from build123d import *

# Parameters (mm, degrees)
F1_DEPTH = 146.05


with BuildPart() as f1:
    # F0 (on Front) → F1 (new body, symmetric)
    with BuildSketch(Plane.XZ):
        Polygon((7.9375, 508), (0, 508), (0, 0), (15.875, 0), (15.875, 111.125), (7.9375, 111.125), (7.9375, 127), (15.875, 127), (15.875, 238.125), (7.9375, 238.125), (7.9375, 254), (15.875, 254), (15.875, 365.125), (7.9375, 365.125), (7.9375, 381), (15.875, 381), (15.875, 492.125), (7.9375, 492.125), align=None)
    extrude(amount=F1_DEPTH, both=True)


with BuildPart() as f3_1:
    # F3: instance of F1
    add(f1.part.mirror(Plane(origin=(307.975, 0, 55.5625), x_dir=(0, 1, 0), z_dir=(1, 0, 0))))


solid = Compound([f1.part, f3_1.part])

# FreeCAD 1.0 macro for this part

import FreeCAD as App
import Part
import Sketcher
Q = App.Units.Quantity


def add_polygon(sketch, points):
    """Adds a closed chain of lines whose ends are joined by coincident constraints."""
    first, n = sketch.GeometryCount, len(points)
    for a, b in zip(points, points[1:] + points[:1]):
        sketch.addGeometry(Part.LineSegment(App.Vector(*a, 0), App.Vector(*b, 0)), False)
    for i in range(n):
        sketch.addConstraint(Sketcher.Constraint("Coincident", first + i, 2, first + (i + 1) % n, 1))

doc = App.newDocument("Part")
body = doc.addObject("PartDesign::Body", "Body")

# Sketch on XZ plane
sketch1 = body.newObject("Sketcher::SketchObject", "Sketch")
sketch1.AttachmentSupport = (doc.getObject("XZ_Plane"), [""])
sketch1.MapMode = "FlatFace"
add_polygon(sketch1, [(8, 508), (0, 508), (0, 0), (16, 0), (16, 111), (8, 111), (8, 127), (16, 127), (16, 238), (8, 238), (8, 254), (16, 254), (16, 365), (8, 365), (8, 381), (16, 381), (16, 492), (8, 492)])  # lines 0-17
sketch1.addConstraint(Sketcher.Constraint("Horizontal", 0))
sketch1.addConstraint(Sketcher.Constraint("Vertical", 1))
sketch1.addConstraint(Sketcher.Constraint("Horizontal", 2))
sketch1.addConstraint(Sketcher.Constraint("Vertical", 3))
sketch1.addConstraint(Sketcher.Constraint("Horizontal", 4))
sketch1.addConstraint(Sketcher.Constraint("Vertical", 5))
sketch1.addConstraint(Sketcher.Constraint("Horizontal", 6))
sketch1.addConstraint(Sketcher.Constraint("Vertical", 7))
sketch1.addConstraint(Sketcher.Constraint("Horizontal", 8))
sketch1.addConstraint(Sketcher.Constraint("Vertical", 9))
sketch1.addConstraint(Sketcher.Constraint("Horizontal", 10))
sketch1.addConstraint(Sketcher.Constraint("Vertical", 11))
sketch1.addConstraint(Sketcher.Constraint("Horizontal", 12))
sketch1.addConstraint(Sketcher.Constraint("Vertical", 13))
sketch1.addConstraint(Sketcher.Constraint("Horizontal", 14))
sketch1.addConstraint(Sketcher.Constraint("Vertical", 15))
sketch1.addConstraint(Sketcher.Constraint("Horizontal", 16))
sketch1.addConstraint(Sketcher.Constraint("Vertical", 17))
sketch1.addConstraint(Sketcher.Constraint("Coincident", 1, 2, -1, 1))
sketch1.addConstraint(Sketcher.Constraint("Vertical", 3, 2, 6, 2))
sketch1.addConstraint(Sketcher.Constraint("Vertical", 5, 2, 8, 2))
sketch1.addConstraint(Sketcher.Constraint("Vertical", 7, 2, 10, 2))
sketch1.addConstraint(Sketcher.Constraint("Vertical", 9, 2, 12, 2))
sketch1.addConstraint(Sketcher.Constraint("Vertical", 11, 2, 14, 2))
sketch1.addConstraint(Sketcher.Constraint("Vertical", 13, 2, 16, 2))
sketch1.addConstraint(Sketcher.Constraint("Equal", 0, 4))
sketch1.addConstraint(Sketcher.Constraint("Equal", 2, 5))
sketch1.addConstraint(Sketcher.Constraint("Equal", 3, 7))
sketch1.addConstraint(Sketcher.Constraint("Equal", 5, 9))
sketch1.addConstraint(Sketcher.Constraint("Equal", 7, 11))
sketch1.addConstraint(Sketcher.Constraint("Equal", 9, 13))
sketch1.addConstraint(Sketcher.Constraint("Equal", 11, 15))
sketch1.addConstraint(Sketcher.Constraint("Equal", 13, 17))
sketch1.addConstraint(Sketcher.Constraint("DistanceY", 1, 2, 1, 1, Q("20 in")))
sketch1.addConstraint(Sketcher.Constraint("DistanceX", 0, 2, 0, 1, Q("0.3125 in")))
pad1 = body.newObject("PartDesign::Pad", "Pad")
pad1.Profile = sketch1
pad1.Length = Q("11.5 in")
pad1.Midplane = True
body2 = doc.addObject("PartDesign::Body", "Body001")
doc.recompute()

mirroring = doc.addObject("Part::Mirroring", "Mirroring")
mirroring.Source = body
mirroring.Base = App.Vector(307.975, 0, 55.5625)
mirroring.Normal = App.Vector(1, 0, 0)
body2.BaseFeature = mirroring
doc.recompute()
mirroring.Visibility = False

doc.recompute()
